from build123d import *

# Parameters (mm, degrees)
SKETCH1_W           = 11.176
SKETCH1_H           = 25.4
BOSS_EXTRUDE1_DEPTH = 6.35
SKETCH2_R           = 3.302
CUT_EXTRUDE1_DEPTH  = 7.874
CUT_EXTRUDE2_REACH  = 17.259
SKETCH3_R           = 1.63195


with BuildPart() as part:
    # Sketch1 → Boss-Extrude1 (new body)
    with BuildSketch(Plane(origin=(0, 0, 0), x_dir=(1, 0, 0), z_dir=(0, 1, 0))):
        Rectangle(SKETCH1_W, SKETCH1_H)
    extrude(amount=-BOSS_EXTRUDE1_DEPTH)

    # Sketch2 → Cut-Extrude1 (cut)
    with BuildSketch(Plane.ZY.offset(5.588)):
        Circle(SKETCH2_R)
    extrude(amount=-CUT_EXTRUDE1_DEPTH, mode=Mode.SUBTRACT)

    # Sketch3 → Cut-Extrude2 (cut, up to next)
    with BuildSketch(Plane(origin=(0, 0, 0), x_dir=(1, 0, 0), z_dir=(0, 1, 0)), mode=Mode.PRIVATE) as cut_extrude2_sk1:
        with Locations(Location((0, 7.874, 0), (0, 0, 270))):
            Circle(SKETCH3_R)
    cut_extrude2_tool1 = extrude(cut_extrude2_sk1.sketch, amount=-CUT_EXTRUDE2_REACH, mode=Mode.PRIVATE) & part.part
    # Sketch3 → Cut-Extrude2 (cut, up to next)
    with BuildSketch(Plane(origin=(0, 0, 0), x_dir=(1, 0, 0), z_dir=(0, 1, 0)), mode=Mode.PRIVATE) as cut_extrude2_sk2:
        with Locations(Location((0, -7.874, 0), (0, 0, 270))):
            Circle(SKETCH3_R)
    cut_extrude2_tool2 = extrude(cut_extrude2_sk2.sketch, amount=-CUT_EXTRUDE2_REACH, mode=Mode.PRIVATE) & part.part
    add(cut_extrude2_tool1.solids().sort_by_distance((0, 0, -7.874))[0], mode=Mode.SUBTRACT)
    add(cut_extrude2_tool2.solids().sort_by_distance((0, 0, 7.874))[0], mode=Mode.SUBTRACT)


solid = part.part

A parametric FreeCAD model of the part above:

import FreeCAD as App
import Part
import Sketcher
Q = App.Units.Quantity


def add_polygon(sketch, points):
    """Adds a closed chain of lines whose ends are joined by coincident constraints."""
    first, n = sketch.GeometryCount, len(points)
    for a, b in zip(points, points[1:] + points[:1]):
        sketch.addGeometry(Part.LineSegment(App.Vector(*a, 0), App.Vector(*b, 0)), False)
    for i in range(n):
        sketch.addConstraint(Sketcher.Constraint("Coincident", first + i, 2, first + (i + 1) % n, 1))

doc = App.newDocument("Part")
body = doc.addObject("PartDesign::Body", "Body")

sketch1 = body.newObject("Sketcher::SketchObject", "Sketch")
sketch1.AttachmentSupport = (doc.getObject("XZ_Plane"), [""])
sketch1.MapMode = "FlatFace"
add_polygon(sketch1, [(-6, -13), (-6, 13), (6, 13), (6, -13)])
sketch1.addConstraint([
    Sketcher.Constraint("Vertical", 0),
    Sketcher.Constraint("Horizontal", 1),
    Sketcher.Constraint("Vertical", 2),
    Sketcher.Constraint("Horizontal", 3),
    Sketcher.Constraint("Symmetric", 0, 2, 2, 2, -1, 1),
    Sketcher.Constraint("DistanceY", 0, 1, 0, 2, Q("1 in")),
    Sketcher.Constraint("DistanceX", 1, 1, 1, 2, Q("0.44 in")),
])
pad1 = body.newObject("PartDesign::Pad", "Pad")
pad1.Profile = sketch1
pad1.Length = Q("0.25 in")

sketch2 = body.newObject("Sketcher::SketchObject", "Sketch001")
sketch2.AttachmentSupport = (doc.getObject("YZ_Plane"), [""])
sketch2.MapMode = "FlatFace"
sketch2.AttachmentOffset = App.Placement(App.Vector(0, 0, -0.22 * 25.4), App.Rotation())
sketch2.addGeometry(Part.Circle(App.Vector(0, 0, 0), App.Vector(0, 0, 1), 3.3), False)
sketch2.addConstraint([
    Sketcher.Constraint("Coincident", 0, 3, -1, 1),
    Sketcher.Constraint("Diameter", 0, Q("0.26 in")),
])
pocket1 = body.newObject("PartDesign::Pocket", "Pocket")
pocket1.Profile = sketch2
pocket1.Length = Q("0.31 in")
pocket1.Reversed = True

sketch3 = body.newObject("Sketcher::SketchObject", "Sketch002")
sketch3.AttachmentSupport = (doc.getObject("XZ_Plane"), [""])
sketch3.MapMode = "FlatFace"
sketch3.addGeometry(Part.Circle(App.Vector(0, -7.9, 0), App.Vector(0, 0, 1), 1.6), False)
sketch3.addConstraint([
    Sketcher.Constraint("PointOnObject", 0, 3, -2),
    Sketcher.Constraint("Diameter", 0, Q("0.1285 in")),
    Sketcher.Constraint("DistanceY", 0, 3, -1, 1, Q("0.31 in")),
])
pocket2 = body.newObject("PartDesign::Pocket", "Pocket001")
pocket2.Profile = sketch3
pocket2.Type = "UpToFirst"
pocket2.Reversed = True

sketch4 = body.newObject("Sketcher::SketchObject", "Sketch003")
sketch4.AttachmentSupport = (doc.getObject("XZ_Plane"), [""])
sketch4.MapMode = "FlatFace"
sketch4.addGeometry(Part.Circle(App.Vector(0, 7.9, 0), App.Vector(0, 0, 1), 1.6), False)
sketch4.addConstraint([
    Sketcher.Constraint("PointOnObject", 0, 3, -2),
    Sketcher.Constraint("Diameter", 0, Q("0.1285 in")),
    Sketcher.Constraint("DistanceY", -1, 1, 0, 3, Q("0.31 in")),
])
pocket3 = body.newObject("PartDesign::Pocket", "Pocket002")
pocket3.Profile = sketch4
pocket3.Type = "UpToFirst"
pocket3.Reversed = True

doc.recompute()
